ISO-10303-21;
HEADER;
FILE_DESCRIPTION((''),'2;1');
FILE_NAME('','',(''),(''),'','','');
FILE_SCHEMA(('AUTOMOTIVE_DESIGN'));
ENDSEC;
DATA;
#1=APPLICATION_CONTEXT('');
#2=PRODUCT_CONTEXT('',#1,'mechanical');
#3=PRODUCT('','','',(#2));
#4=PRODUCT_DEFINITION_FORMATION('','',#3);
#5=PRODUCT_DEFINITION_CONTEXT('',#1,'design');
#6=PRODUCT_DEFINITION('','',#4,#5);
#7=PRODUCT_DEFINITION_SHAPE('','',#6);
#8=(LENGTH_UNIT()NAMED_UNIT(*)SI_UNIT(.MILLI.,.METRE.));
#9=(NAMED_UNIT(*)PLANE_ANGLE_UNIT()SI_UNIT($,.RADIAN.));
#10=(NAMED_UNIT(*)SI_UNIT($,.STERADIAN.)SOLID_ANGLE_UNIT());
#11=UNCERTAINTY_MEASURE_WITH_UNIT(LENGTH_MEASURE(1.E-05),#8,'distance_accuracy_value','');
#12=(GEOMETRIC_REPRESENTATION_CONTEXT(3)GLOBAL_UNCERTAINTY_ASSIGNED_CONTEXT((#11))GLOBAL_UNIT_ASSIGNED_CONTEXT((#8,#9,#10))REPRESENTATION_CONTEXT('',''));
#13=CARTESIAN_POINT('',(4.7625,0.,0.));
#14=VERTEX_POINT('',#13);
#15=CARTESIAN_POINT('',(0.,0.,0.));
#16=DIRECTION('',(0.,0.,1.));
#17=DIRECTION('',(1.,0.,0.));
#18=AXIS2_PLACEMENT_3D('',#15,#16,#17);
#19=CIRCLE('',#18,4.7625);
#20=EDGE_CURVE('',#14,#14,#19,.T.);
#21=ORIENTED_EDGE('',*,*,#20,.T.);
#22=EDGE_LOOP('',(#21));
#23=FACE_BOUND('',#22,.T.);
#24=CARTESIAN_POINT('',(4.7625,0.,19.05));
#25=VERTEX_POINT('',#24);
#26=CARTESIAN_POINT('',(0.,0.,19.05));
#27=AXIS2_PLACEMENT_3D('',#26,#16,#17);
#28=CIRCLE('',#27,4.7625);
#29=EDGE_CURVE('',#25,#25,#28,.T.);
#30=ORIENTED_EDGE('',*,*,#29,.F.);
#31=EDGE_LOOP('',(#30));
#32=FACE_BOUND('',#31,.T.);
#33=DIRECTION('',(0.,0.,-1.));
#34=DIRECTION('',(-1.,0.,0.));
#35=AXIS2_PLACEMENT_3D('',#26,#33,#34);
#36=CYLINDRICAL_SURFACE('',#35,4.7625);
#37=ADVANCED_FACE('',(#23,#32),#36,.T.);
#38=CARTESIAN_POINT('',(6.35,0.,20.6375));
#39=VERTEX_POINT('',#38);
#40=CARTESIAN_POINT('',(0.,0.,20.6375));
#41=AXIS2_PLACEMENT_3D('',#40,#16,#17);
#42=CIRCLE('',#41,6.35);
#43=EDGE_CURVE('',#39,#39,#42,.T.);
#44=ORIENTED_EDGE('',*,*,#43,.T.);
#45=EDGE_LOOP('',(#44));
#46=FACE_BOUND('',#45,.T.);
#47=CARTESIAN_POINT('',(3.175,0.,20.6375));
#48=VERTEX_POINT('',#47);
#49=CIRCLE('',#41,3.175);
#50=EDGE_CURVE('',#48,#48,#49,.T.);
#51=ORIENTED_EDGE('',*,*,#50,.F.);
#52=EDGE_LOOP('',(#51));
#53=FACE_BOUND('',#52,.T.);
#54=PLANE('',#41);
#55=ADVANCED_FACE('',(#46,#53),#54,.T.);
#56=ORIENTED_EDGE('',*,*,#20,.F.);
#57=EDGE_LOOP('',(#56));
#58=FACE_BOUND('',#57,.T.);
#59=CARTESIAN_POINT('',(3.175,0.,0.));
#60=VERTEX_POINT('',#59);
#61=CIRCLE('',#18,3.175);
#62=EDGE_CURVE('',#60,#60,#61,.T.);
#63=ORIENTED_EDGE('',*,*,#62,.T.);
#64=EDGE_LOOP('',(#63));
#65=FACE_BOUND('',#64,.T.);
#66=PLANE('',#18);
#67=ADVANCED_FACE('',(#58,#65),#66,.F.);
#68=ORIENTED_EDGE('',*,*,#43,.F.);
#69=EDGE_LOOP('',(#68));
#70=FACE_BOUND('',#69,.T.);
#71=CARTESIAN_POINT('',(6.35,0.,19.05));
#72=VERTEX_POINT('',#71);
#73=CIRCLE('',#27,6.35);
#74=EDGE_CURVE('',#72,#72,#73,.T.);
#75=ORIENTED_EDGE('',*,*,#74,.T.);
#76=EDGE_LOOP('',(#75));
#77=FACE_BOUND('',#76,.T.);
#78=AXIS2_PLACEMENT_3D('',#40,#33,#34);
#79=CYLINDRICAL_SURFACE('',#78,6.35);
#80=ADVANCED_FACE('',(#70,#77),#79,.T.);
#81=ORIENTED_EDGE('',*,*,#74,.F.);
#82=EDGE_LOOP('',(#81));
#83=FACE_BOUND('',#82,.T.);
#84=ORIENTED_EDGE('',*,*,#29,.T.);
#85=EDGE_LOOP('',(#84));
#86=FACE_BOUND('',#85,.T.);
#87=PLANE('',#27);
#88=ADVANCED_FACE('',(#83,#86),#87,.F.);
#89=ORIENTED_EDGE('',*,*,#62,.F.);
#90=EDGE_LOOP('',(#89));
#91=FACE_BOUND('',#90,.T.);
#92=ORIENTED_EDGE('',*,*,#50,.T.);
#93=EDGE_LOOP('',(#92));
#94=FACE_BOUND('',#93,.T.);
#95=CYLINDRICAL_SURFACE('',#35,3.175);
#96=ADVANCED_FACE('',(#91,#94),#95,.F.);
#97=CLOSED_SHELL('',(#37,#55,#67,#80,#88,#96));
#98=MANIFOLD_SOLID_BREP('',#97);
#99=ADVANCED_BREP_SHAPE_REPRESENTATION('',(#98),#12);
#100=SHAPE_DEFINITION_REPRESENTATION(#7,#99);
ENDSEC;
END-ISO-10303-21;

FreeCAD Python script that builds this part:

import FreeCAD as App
import Part
import Sketcher
Q = App.Units.Quantity

doc = App.newDocument("Part")
body = doc.addObject("PartDesign::Body", "Body")

# Sketch on XY plane
sketch1 = body.newObject("Sketcher::SketchObject", "Sketch")
sketch1.AttachmentSupport = (doc.getObject("XY_Plane"), [""])
sketch1.MapMode = "FlatFace"
sketch1.addGeometry(Part.Circle(App.Vector(0, 0, 0), App.Vector(0, 0, 1), 4.8), False)
sketch1.addGeometry(Part.Circle(App.Vector(0, 0, 0), App.Vector(0, 0, 1), 3.2), False)
sketch1.addConstraint(Sketcher.Constraint("Coincident", 0, 3, -1, 1))
sketch1.addConstraint(Sketcher.Constraint("Coincident", 1, 3, -1, 1))
sketch1.addConstraint(Sketcher.Constraint("Diameter", 1, Q("0.25 in")))
sketch1.addConstraint(Sketcher.Constraint("Diameter", 0, Q("0.375 in")))
pad1 = body.newObject("PartDesign::Pad", "Pad")
pad1.Profile = sketch1
pad1.Length = Q("0.75 in")

# Sketch on XY plane
sketch2 = body.newObject("Sketcher::SketchObject", "Sketch001")
sketch2.AttachmentSupport = (doc.getObject("XY_Plane"), [""])
sketch2.MapMode = "FlatFace"
sketch2.AttachmentOffset = App.Placement(App.Vector(0, 0, 0.75 * 25.4), App.Rotation())
sketch2.addGeometry(Part.Circle(App.Vector(0, 0, 0), App.Vector(0, 0, 1), 6.3), False)
sketch2.addGeometry(Part.Circle(App.Vector(0, 0, 0), App.Vector(0, 0, 1), 3.2), False)
sketch2.addConstraint(Sketcher.Constraint("Coincident", 0, 3, -1, 1))
sketch2.addConstraint(Sketcher.Constraint("Coincident", 1, 3, -1, 1))
sketch2.addConstraint(Sketcher.Constraint("Diameter", 0, Q("0.5 in")))
sketch2.addConstraint(Sketcher.Constraint("Diameter", 1, Q("0.25 in")))
pad2 = body.newObject("PartDesign::Pad", "Pad001")
pad2.Profile = sketch2
pad2.Length = Q("0.0625 in")

doc.recompute()
